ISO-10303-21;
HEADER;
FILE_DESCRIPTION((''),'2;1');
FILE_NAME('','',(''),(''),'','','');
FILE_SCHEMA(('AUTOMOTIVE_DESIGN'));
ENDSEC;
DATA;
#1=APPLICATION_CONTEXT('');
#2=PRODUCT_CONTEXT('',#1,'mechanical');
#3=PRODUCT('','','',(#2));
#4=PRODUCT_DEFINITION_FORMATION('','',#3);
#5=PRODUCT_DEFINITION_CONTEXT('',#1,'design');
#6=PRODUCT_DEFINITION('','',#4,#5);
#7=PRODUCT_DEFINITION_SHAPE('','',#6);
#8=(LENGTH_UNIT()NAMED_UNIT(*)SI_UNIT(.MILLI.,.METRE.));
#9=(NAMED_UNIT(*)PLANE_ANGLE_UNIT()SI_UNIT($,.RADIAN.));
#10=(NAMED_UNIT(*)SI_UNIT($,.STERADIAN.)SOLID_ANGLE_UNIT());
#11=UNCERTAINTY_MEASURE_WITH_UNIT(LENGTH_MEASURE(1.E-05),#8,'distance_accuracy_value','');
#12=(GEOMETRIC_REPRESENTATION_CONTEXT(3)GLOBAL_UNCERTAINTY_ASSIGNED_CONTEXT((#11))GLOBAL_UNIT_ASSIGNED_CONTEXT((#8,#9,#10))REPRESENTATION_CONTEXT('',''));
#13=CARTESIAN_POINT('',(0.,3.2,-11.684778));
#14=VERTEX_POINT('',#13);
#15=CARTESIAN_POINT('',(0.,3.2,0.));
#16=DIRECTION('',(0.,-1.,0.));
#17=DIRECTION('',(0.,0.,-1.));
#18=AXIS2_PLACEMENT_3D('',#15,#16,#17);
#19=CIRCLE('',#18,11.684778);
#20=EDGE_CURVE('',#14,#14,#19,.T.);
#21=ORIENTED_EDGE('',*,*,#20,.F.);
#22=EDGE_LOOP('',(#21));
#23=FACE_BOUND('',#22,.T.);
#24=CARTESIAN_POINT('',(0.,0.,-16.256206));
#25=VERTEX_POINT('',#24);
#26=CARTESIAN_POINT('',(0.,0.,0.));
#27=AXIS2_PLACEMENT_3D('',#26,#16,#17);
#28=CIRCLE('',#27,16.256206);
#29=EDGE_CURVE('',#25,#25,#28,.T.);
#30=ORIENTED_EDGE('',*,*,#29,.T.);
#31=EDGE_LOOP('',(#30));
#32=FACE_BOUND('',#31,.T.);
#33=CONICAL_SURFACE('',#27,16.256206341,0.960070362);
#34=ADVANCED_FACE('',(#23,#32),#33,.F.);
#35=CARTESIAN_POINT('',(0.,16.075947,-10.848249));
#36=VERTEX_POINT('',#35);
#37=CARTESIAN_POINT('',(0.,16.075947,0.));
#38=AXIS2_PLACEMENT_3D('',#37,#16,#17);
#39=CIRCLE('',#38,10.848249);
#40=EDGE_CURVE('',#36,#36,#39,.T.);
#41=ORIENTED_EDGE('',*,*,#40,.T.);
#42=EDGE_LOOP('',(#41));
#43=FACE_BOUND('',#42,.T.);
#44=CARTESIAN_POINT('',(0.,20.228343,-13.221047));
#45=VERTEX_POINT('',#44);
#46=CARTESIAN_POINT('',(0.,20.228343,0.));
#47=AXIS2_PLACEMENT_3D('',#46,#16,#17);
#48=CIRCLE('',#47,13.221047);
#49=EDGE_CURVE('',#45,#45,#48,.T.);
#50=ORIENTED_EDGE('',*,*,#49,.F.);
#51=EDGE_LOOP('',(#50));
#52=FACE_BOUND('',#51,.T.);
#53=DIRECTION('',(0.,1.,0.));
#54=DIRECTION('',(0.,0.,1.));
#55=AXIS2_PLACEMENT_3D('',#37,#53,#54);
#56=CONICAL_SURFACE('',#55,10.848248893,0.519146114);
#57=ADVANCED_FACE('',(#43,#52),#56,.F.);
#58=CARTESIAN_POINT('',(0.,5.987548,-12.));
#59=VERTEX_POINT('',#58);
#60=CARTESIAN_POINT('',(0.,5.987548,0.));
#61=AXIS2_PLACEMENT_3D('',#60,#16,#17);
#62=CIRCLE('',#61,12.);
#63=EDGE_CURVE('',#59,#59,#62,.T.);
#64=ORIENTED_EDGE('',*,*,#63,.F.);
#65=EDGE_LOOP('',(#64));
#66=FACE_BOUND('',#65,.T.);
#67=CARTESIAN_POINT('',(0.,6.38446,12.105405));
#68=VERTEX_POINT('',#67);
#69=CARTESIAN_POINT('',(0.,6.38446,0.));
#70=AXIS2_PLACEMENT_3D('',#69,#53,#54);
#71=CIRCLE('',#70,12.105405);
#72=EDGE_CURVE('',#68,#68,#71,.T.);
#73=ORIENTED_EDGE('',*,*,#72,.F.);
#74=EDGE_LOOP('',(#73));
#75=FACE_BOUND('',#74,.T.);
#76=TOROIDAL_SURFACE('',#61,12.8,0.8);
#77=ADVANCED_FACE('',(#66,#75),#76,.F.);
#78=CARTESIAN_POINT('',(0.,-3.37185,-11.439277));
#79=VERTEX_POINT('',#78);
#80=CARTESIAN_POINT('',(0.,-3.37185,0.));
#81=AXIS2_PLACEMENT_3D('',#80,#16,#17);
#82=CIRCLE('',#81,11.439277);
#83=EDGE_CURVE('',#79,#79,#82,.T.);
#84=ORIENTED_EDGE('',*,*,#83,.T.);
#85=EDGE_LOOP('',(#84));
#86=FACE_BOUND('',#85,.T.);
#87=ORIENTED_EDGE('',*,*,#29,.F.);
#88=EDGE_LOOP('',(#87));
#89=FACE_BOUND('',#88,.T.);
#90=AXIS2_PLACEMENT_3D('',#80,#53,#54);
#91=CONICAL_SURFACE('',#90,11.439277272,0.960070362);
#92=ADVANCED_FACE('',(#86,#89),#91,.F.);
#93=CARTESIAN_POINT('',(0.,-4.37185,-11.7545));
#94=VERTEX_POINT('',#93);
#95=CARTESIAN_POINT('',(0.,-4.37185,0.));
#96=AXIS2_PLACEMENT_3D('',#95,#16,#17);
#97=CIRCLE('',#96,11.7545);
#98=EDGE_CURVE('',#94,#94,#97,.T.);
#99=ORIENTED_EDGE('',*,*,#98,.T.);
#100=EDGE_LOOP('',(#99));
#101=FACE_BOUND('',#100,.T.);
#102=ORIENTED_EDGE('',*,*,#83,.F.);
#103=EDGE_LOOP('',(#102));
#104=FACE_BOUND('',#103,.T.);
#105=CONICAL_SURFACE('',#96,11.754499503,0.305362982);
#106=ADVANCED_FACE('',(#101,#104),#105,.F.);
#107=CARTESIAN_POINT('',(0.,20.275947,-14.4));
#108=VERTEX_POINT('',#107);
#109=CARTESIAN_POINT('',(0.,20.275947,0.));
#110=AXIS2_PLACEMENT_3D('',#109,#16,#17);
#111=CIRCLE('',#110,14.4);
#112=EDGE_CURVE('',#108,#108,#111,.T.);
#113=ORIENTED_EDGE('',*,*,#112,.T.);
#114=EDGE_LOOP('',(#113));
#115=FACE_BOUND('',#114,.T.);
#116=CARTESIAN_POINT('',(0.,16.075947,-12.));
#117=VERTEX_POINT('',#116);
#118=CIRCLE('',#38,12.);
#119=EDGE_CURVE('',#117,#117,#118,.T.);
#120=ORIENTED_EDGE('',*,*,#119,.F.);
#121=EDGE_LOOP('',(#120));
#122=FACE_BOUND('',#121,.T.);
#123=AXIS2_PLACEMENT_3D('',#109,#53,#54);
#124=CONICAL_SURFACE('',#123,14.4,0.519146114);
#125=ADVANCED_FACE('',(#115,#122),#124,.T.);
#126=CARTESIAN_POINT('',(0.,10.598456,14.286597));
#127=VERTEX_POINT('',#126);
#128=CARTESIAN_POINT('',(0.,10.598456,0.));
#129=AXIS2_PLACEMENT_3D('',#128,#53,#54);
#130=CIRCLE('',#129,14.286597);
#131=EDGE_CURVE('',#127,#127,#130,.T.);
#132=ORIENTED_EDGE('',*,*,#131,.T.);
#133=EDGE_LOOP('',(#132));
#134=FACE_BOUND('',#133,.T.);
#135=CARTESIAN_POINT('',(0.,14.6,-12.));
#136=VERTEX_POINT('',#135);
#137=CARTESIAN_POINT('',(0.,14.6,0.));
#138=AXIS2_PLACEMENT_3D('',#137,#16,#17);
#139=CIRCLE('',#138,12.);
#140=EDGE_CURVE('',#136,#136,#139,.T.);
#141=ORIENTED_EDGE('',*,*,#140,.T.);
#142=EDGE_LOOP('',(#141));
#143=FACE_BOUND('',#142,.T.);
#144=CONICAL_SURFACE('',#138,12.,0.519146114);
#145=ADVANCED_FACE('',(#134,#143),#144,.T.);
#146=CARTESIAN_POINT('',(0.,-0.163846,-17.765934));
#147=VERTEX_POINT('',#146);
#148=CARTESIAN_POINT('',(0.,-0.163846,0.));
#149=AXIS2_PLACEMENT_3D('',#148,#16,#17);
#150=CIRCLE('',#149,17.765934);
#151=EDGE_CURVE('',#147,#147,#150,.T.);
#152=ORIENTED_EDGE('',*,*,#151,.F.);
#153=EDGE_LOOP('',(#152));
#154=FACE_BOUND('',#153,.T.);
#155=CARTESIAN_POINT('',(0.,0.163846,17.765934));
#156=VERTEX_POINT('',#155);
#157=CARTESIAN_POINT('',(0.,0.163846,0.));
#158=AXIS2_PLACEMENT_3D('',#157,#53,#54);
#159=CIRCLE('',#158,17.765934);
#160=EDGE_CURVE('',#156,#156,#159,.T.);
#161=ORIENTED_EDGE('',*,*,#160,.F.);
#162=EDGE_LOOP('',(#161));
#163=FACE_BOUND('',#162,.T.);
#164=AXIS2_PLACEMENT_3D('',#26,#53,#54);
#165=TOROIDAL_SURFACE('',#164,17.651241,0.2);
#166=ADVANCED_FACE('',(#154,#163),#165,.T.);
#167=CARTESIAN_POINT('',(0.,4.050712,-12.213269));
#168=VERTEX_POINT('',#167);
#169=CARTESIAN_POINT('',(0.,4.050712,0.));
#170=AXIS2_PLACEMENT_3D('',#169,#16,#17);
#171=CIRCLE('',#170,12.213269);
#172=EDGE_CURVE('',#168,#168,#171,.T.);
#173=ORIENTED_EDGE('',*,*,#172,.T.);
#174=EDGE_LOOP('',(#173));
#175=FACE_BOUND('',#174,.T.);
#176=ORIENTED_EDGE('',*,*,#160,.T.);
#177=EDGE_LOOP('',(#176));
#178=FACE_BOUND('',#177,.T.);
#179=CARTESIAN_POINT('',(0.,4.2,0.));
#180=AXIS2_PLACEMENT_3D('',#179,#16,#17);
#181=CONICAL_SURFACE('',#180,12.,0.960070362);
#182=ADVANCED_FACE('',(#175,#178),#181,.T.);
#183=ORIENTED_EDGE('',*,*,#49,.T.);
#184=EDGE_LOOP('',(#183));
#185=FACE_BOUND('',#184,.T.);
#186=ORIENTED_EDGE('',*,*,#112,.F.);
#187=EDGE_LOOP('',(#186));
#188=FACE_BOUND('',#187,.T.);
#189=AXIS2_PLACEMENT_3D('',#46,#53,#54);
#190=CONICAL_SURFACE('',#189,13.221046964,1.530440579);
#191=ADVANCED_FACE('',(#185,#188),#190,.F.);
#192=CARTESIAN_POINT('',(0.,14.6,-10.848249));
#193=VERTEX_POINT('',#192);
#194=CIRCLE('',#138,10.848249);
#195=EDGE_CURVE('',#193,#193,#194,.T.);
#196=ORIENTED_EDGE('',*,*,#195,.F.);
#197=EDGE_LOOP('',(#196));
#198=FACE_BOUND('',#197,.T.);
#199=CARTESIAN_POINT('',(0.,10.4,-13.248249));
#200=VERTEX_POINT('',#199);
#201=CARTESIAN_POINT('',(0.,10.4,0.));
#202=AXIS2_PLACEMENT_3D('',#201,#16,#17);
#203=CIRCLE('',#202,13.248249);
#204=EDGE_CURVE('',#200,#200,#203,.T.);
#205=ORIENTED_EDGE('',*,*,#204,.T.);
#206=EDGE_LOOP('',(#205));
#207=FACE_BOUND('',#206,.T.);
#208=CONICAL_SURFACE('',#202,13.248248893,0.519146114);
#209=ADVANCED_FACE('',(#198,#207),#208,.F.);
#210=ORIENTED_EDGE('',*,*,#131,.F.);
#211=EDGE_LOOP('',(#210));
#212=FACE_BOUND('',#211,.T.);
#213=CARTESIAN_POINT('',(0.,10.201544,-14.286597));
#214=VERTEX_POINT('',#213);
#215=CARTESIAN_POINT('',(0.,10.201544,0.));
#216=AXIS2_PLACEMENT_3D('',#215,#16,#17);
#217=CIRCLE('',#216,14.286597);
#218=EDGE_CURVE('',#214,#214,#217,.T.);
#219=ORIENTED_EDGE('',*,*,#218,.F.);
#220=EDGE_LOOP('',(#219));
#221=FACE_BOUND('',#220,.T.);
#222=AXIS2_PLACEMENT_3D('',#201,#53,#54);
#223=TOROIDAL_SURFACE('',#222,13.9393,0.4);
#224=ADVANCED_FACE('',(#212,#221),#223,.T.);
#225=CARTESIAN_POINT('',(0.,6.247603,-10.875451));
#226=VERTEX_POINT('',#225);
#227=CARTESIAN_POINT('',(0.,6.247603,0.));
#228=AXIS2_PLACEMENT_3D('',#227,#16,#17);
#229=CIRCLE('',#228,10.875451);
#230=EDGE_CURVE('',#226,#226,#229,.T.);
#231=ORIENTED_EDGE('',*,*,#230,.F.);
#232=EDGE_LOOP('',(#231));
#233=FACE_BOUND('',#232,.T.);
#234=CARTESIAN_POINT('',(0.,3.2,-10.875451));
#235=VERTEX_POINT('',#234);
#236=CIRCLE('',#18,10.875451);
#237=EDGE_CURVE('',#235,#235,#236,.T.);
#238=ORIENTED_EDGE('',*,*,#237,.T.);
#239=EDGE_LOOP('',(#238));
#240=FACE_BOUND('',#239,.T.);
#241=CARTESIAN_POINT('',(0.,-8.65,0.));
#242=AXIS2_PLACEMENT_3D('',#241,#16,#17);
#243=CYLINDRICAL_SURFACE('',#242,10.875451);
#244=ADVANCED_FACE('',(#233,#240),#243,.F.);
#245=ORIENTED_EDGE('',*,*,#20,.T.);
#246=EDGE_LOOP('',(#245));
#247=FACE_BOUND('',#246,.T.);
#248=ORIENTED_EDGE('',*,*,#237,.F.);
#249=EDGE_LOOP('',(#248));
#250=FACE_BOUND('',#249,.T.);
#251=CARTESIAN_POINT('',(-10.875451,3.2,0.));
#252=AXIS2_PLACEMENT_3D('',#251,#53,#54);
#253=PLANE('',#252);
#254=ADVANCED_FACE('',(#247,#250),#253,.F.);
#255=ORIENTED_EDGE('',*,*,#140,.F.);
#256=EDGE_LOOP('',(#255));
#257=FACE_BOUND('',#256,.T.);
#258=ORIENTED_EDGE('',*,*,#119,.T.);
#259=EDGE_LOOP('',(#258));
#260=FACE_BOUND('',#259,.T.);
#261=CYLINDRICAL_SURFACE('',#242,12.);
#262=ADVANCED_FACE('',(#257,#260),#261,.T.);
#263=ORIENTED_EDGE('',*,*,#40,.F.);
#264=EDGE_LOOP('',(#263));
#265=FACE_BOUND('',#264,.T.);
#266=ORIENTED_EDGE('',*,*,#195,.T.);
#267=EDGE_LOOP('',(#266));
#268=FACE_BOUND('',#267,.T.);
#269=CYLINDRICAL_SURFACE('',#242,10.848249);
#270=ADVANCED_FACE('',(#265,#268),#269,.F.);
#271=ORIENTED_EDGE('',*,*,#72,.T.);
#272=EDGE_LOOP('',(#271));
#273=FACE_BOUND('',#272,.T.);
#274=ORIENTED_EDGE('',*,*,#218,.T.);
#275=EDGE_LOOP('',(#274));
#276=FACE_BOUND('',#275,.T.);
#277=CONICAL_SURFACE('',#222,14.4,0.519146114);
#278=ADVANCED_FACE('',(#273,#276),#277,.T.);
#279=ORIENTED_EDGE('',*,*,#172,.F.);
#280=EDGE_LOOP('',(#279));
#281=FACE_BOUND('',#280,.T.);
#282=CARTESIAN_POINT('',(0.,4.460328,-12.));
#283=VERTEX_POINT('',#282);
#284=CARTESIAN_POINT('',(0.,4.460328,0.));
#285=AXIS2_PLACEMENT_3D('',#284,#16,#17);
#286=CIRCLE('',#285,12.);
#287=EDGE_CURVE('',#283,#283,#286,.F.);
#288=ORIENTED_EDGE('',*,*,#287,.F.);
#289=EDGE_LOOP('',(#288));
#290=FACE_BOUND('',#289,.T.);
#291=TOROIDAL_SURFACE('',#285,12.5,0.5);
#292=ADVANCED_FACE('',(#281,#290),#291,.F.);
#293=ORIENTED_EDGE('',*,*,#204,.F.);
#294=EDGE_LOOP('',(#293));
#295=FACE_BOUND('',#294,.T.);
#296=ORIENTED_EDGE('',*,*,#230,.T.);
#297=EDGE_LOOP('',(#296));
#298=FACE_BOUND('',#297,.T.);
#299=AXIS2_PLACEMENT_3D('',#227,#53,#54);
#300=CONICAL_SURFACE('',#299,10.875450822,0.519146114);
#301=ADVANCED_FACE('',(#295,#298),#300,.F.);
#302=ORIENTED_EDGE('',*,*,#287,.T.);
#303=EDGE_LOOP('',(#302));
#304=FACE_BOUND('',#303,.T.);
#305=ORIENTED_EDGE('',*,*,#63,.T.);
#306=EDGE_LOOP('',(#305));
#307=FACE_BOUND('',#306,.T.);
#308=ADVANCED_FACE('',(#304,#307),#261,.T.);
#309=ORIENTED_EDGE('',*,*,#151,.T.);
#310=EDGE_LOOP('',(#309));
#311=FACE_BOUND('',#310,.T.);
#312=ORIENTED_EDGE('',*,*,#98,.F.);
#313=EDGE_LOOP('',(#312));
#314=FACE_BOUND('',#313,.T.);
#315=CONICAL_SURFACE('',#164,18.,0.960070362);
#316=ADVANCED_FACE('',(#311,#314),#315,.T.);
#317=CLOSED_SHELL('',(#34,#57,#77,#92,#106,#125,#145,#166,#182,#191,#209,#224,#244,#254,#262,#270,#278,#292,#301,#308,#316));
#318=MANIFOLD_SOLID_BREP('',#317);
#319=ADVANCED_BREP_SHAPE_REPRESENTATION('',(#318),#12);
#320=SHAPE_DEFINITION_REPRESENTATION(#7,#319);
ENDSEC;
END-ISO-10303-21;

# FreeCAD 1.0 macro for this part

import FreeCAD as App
import Part
import Sketcher

V = App.Vector
Q = App.Units.Quantity


def edges_at(feature, points):
    """Names of the edges that pass closest to the given points."""
    edges = feature.Shape.Edges
    near = lambda p: min(range(len(edges)), key=lambda i: edges[i].distToShape(Part.Vertex(*p))[0])
    return sorted({f"Edge{near(p) + 1}" for p in points})


def add_polygon(sketch, points):
    """Adds a closed chain of lines whose ends are joined by coincident constraints."""
    first, n = sketch.GeometryCount, len(points)
    for a, b in zip(points, points[1:] + points[:1]):
        sketch.addGeometry(Part.LineSegment(App.Vector(*a, 0), App.Vector(*b, 0)), False)
    for i in range(n):
        sketch.addConstraint(Sketcher.Constraint("Coincident", first + i, 2, first + (i + 1) % n, 1))

doc = App.newDocument("Part")
params = doc.addObject("Spreadsheet::Sheet", "Params")
for row, (alias, value) in enumerate([
    ("sketch1_height", "2 mm"),
    ("revolution_angle", "360 deg"),
    ("fillet_radius", "0.2 mm"),
    ("fillet2_radius", "0.5 mm"),
    ("fillet3_radius", "0.4 mm"),
    ("fillet4_radius", "0.8 mm"),
], start=1):
    params.set(f"A{row}", alias)
    params.set(f"B{row}", "=" + value)
    params.setAlias(f"B{row}", alias)

body = doc.addObject("PartDesign::Body", "Body")

# Sketch on XY plane
sketch1 = doc.addObject("Sketcher::SketchObject", "Sketch")
body.addObject(sketch1)
sketch1.AttachmentSupport = (doc.XY_Plane, [""])
sketch1.MapMode = "FlatFace"
add_polygon(sketch1, [(-12, 4.2), (-18, 0), (-11.7545, -4.37185), (-11.439277, -3.37185), (-16.256206, 0), (-11.684778, 3.2), (-10.875451, 3.2), (-10.875451, 6.247603), (-13.248249, 10.4), (-10.848249, 14.6), (-10.848249, 16.075947), (-13.221047, 20.228343), (-14.4, 20.275947), (-12, 16.075947), (-12, 14.6), (-14.4, 10.4), (-12, 6.2)])  # lines 0-16
sketch1.addConstraint([
    Sketcher.Constraint("Horizontal", 5),
    Sketcher.Constraint("Vertical", 6),
    Sketcher.Constraint("Vertical", 9),
    Sketcher.Constraint("Vertical", 13),
    Sketcher.Constraint("Vertical", 16),
    Sketcher.Constraint("PointOnObject", 0, 2, -1),
    Sketcher.Constraint("PointOnObject", 3, 2, -1),
    Sketcher.Constraint("Parallel", 1, 3),
    Sketcher.Constraint("Parallel", 0, 4),
    Sketcher.Constraint("Parallel", 7, 10),
    Sketcher.Constraint("Parallel", 10, 12),
    Sketcher.Constraint("Parallel", 8, 14),
    Sketcher.Constraint("Parallel", 12, 15),
    Sketcher.Constraint("Horizontal", 9, 2, 12, 2),
    Sketcher.Constraint("Horizontal", 8, 2, 13, 2),
    Sketcher.Constraint("Horizontal", 7, 2, 14, 2),
    Sketcher.Constraint("Vertical", 11, 2, 14, 2),
    Sketcher.Constraint("Vertical", 13, 2, 15, 2),
    Sketcher.Constraint("Equal", 7, 10),
    Sketcher.Constraint("Equal", 8, 12),
    Sketcher.Constraint("DistanceY", 16, 2, 16, 1, Q("2 mm")),
    Sketcher.Constraint("DistanceX", 0, 2, -1, 1, Q("18 mm")),
    Sketcher.Constraint("DistanceX", 12, 2, -1, 1, Q("12 mm")),
    Sketcher.Constraint("DistanceY", 1, 2, 2, 2, Q("1 mm")),
    Sketcher.Constraint("DistanceY", 4, 2, 15, 2, Q("3 mm")),
    Sketcher.Constraint("DistanceY", -1, 1, 4, 2, Q("3.2 mm")),
    Sketcher.Constraint("DistanceY", -1, 1, 7, 2, Q("10.4 mm")),
    Sketcher.Constraint("DistanceX", 11, 2, -1, 1, Q("14.4 mm")),
    Sketcher.Constraint("DistanceX", 1, 2, -1, 1, Q("11.7545 mm")),
    Sketcher.Constraint("DistanceX", 4, 2, 2, 2, Q("0.2455 mm")),
    Sketcher.Constraint("DistanceX", 7, 2, 6, 2, Q("2.372798 mm")),
    Sketcher.Constraint("DistanceX", 5, 1, 5, 2, Q("0.809327 mm")),
    Sketcher.Constraint("DistanceY", 9, 1, 9, 2, Q("1.475947 mm")),
    Sketcher.Constraint("DistanceX", 5, 2, -1, 1, Q("10.875451 mm")),
])
sketch1.setExpression("Constraints[37]", "Params.sketch1_height")
revolution = doc.addObject("PartDesign::Revolution", "Revolution")
body.addObject(revolution)
revolution.Profile = sketch1
revolution.ReferenceAxis = (sketch1, ["V_Axis"])
revolution.setExpression("Angle", "Params.revolution_angle")
doc.recompute()

fillet = doc.addObject("PartDesign::Fillet", "Fillet")
body.addObject(fillet)
fillet.Base = (revolution, edges_at(revolution, [(0, 0, 18)]))
fillet.setExpression("Radius", "Params.fillet_radius")
doc.recompute()

fillet2 = doc.addObject("PartDesign::Fillet", "Fillet001")
body.addObject(fillet2)
fillet2.Base = (fillet, edges_at(fillet, [(0, 4.2, 12)]))
fillet2.setExpression("Radius", "Params.fillet2_radius")
doc.recompute()

fillet3 = doc.addObject("PartDesign::Fillet", "Fillet002")
body.addObject(fillet3)
fillet3.Base = (fillet2, edges_at(fillet2, [(0, 10.4, 14.4)]))
fillet3.setExpression("Radius", "Params.fillet3_radius")
doc.recompute()

fillet4 = doc.addObject("PartDesign::Fillet", "Fillet003")
body.addObject(fillet4)
fillet4.Base = (fillet3, edges_at(fillet3, [(0, 6.2, 12)]))
fillet4.setExpression("Radius", "Params.fillet4_radius")

doc.recompute()
